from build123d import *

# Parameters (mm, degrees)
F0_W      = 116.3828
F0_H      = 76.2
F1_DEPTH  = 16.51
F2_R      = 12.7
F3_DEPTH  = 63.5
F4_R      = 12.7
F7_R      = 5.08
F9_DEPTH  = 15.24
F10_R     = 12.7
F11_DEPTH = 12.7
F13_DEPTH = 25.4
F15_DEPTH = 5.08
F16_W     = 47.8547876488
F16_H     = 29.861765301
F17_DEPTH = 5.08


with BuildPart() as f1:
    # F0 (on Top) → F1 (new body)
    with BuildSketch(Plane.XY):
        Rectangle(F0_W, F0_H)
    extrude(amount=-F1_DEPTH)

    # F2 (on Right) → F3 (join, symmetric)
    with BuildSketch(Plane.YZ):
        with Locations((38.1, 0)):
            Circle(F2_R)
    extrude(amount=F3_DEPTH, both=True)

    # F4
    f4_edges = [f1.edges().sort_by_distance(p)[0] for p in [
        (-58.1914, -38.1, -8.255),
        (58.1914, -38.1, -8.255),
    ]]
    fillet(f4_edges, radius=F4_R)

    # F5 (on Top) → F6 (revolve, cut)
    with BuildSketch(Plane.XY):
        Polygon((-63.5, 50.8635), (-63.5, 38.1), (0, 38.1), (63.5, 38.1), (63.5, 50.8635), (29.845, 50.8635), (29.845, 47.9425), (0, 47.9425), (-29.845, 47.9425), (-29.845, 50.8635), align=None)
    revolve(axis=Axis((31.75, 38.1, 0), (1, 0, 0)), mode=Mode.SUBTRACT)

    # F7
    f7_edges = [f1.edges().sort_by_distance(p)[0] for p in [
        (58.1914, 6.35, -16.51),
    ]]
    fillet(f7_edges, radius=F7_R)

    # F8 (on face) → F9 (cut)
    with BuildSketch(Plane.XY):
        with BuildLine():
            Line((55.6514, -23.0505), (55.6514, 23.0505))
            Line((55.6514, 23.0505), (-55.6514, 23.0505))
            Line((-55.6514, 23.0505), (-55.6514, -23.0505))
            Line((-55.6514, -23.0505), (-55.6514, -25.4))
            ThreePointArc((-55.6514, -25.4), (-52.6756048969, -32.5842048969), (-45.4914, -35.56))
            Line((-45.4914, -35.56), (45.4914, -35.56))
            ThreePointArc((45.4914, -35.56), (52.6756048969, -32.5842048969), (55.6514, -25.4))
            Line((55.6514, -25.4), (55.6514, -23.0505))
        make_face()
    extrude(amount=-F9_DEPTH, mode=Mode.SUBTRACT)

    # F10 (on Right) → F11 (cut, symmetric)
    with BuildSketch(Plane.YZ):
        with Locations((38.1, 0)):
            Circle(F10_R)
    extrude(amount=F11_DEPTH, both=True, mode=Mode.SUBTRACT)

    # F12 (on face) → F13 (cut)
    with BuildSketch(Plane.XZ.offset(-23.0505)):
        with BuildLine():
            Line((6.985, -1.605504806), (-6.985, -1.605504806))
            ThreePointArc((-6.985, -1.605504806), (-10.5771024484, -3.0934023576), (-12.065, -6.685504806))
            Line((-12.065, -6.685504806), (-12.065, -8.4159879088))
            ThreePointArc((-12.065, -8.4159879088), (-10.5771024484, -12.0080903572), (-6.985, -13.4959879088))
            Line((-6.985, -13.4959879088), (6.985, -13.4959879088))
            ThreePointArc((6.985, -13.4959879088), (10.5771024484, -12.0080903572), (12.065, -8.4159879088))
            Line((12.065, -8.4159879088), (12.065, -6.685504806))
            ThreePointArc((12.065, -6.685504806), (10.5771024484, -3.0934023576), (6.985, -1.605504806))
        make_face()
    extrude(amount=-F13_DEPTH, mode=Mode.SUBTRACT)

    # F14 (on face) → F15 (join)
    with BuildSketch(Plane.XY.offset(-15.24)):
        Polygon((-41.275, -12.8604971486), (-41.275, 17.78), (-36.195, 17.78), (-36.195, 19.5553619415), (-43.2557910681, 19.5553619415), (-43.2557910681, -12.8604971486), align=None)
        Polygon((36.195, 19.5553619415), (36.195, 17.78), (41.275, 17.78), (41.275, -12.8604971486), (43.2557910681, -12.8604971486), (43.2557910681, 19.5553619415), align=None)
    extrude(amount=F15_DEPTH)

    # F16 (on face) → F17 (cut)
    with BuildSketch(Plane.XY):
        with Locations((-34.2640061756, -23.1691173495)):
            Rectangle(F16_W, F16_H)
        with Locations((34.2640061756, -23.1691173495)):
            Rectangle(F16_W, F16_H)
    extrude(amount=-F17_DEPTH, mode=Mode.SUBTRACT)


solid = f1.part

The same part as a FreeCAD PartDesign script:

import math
import FreeCAD as App
import Part
import Sketcher
Q = App.Units.Quantity


def edges_at(feature, points):
    """Names of the edges that pass closest to the given points."""
    edges = feature.Shape.Edges
    near = lambda p: min(range(len(edges)), key=lambda i: edges[i].distToShape(Part.Vertex(*p))[0])
    return sorted({f"Edge{near(p) + 1}" for p in points})

doc = App.newDocument("Part")
body = doc.addObject("PartDesign::Body", "Body")

sketch1 = body.newObject("Sketcher::SketchObject", "Sketch")
sketch1.AttachmentSupport = (doc.getObject("XY_Plane"), [""])
sketch1.MapMode = "FlatFace"
sketch1.addGeometry([
    Part.LineSegment(App.Vector(-58, 38, 0), App.Vector(-58, -38, 0)),
    Part.LineSegment(App.Vector(-58, -38, 0), App.Vector(58, -38, 0)),
    Part.LineSegment(App.Vector(58, -38, 0), App.Vector(58, 38, 0)),
    Part.LineSegment(App.Vector(58, 38, 0), App.Vector(-58, 38, 0)),
], False)
sketch1.addConstraint([
    Sketcher.Constraint("Coincident", 0, 2, 1, 1),
    Sketcher.Constraint("Coincident", 1, 2, 2, 1),
    Sketcher.Constraint("Coincident", 2, 2, 3, 1),
    Sketcher.Constraint("Coincident", 3, 2, 0, 1),
    Sketcher.Constraint("Vertical", 0),
    Sketcher.Constraint("Horizontal", 1),
    Sketcher.Constraint("Vertical", 2),
    Sketcher.Constraint("Horizontal", 3),
    Sketcher.Constraint("Symmetric", 0, 2, 2, 2, -1, 1),
    Sketcher.Constraint("DistanceY", 0, 2, 0, 1, Q("3 in")),
    Sketcher.Constraint("DistanceX", 1, 1, 1, 2, Q("4.582 in")),
])
pad1 = body.newObject("PartDesign::Pad", "Pad")
pad1.Profile = sketch1
pad1.Length = Q("0.65 in")
pad1.Reversed = True

sketch2 = body.newObject("Sketcher::SketchObject", "Sketch001")
sketch2.AttachmentSupport = (doc.getObject("YZ_Plane"), [""])
sketch2.MapMode = "FlatFace"
sketch2.addGeometry(Part.Circle(App.Vector(38, 0, 0), App.Vector(0, 0, 1), 13), False)
sketch2.addConstraint([
    Sketcher.Constraint("PointOnObject", 0, 3, -1),
    Sketcher.Constraint("Diameter", 0, Q("1 in")),
    Sketcher.Constraint("DistanceX", -1, 1, 0, 3, Q("1.5 in")),
])
pad2 = body.newObject("PartDesign::Pad", "Pad001")
pad2.Profile = sketch2
pad2.Length = Q("5 in")
pad2.Midplane = True
doc.recompute()

fillet = body.newObject("PartDesign::Fillet", "Fillet")
fillet.Base = (pad2, edges_at(pad2, [(-58.191, -38.1, -8.255), (58.191, -38.1, -8.255)]))
fillet.Radius = Q("0.5 in")

sketch3 = body.newObject("Sketcher::SketchObject", "Sketch002")
sketch3.AttachmentSupport = (doc.getObject("XY_Plane"), [""])
sketch3.MapMode = "FlatFace"
sketch3.addGeometry([
    Part.LineSegment(App.Vector(-63.5, 50.9, 0), App.Vector(-63.5, 38.1, 0)),
    Part.LineSegment(App.Vector(-63.5, 38.1, 0), App.Vector(63.5, 38.1, 0)),
    Part.LineSegment(App.Vector(63.5, 38.1, 0), App.Vector(63.5, 50.9, 0)),
    Part.LineSegment(App.Vector(63.5, 50.9, 0), App.Vector(29.8, 50.9, 0)),
    Part.LineSegment(App.Vector(29.8, 50.9, 0), App.Vector(29.8, 47.9, 0)),
    Part.LineSegment(App.Vector(29.8, 47.9, 0), App.Vector(-29.8, 47.9, 0)),
    Part.LineSegment(App.Vector(-29.8, 47.9, 0), App.Vector(-29.8, 50.9, 0)),
    Part.LineSegment(App.Vector(-29.8, 50.9, 0), App.Vector(-63.5, 50.9, 0)),
], False)
sketch3.addGeometry(Part.LineSegment(App.Vector(-63.5, 38.1, 0), App.Vector(63.5, 38.1, 0)), True)
sketch3.addConstraint([
    Sketcher.Constraint("Coincident", 0, 2, 1, 1),
    Sketcher.Constraint("Coincident", 1, 2, 2, 1),
    Sketcher.Constraint("Coincident", 2, 2, 3, 1),
    Sketcher.Constraint("Coincident", 3, 2, 4, 1),
    Sketcher.Constraint("Coincident", 4, 2, 5, 1),
    Sketcher.Constraint("Coincident", 5, 2, 6, 1),
    Sketcher.Constraint("Coincident", 6, 2, 7, 1),
    Sketcher.Constraint("Coincident", 7, 2, 0, 1),
    Sketcher.Constraint("Vertical", 0),
    Sketcher.Constraint("Horizontal", 1),
    Sketcher.Constraint("Vertical", 2),
    Sketcher.Constraint("Horizontal", 3),
    Sketcher.Constraint("Vertical", 4),
    Sketcher.Constraint("Horizontal", 5),
    Sketcher.Constraint("Vertical", 6),
    Sketcher.Constraint("Horizontal", 7),
    Sketcher.Constraint("Horizontal", 8),
    Sketcher.Constraint("Coincident", 8, 1, 0, 2),
    Sketcher.Constraint("Symmetric", 3, 2, 6, 2, -2),
    Sketcher.Constraint("Vertical", 2, 2, 8, 2),
    Sketcher.Constraint("Equal", 3, 7),
    Sketcher.Constraint("DistanceX", 1, 1, 1, 2, Q("5 in")),
    Sketcher.Constraint("DistanceX", 5, 2, 5, 1, Q("2.35 in")),
    Sketcher.Constraint("DistanceY", -1, 1, 0, 2, Q("1.5 in")),
    Sketcher.Constraint("DistanceY", 4, 2, 4, 1, Q("0.115 in")),
    Sketcher.Constraint("DistanceY", 0, 2, 0, 1, Q("0.5025 in")),
])
groove = body.newObject("PartDesign::Groove", "Groove")
groove.Profile = sketch3
groove.ReferenceAxis = (sketch3, ["Axis0"])
groove.Angle = 360
doc.recompute()

fillet2 = body.newObject("PartDesign::Fillet", "Fillet001")
fillet2.Base = (groove, edges_at(groove, [(58.191, 6.35, -16.51)]))
fillet2.Radius = Q("0.2 in")

sketch4 = body.newObject("Sketcher::SketchObject", "Sketch003")
sketch4.AttachmentSupport = (doc.getObject("XY_Plane"), [""])
sketch4.MapMode = "FlatFace"
sketch4.addGeometry([
    Part.LineSegment(App.Vector(56, 23, 0), App.Vector(-56, 23, 0)),
    Part.LineSegment(App.Vector(-56, 23, 0), App.Vector(-56, -25, 0)),
    Part.ArcOfCircle(Part.Circle(App.Vector(-45, -25, 0), App.Vector(0, 0, 1), 10), math.radians(180), math.radians(270)),
    Part.LineSegment(App.Vector(-45, -36, 0), App.Vector(45, -36, 0)),
    Part.ArcOfCircle(Part.Circle(App.Vector(45, -25, 0), App.Vector(0, 0, 1), 10), math.radians(-90), math.radians(0)),
    Part.LineSegment(App.Vector(56, -25, 0), App.Vector(56, 23, 0)),
], False)
sketch4.addConstraint([
    Sketcher.Constraint("Coincident", 0, 2, 1, 1),
    Sketcher.Constraint("Tangent", 1, 2, 2, 1),
    Sketcher.Constraint("Tangent", 2, 2, 3, 1),
    Sketcher.Constraint("Tangent", 3, 2, 4, 1),
    Sketcher.Constraint("Tangent", 4, 2, 5, 1),
    Sketcher.Constraint("Coincident", 5, 2, 0, 1),
    Sketcher.Constraint("Horizontal", 0),
    Sketcher.Constraint("Vertical", 1),
    Sketcher.Constraint("Horizontal", 3),
    Sketcher.Constraint("Vertical", 5),
    Sketcher.Constraint("Equal", 2, 4),
    Sketcher.Constraint("Radius", 2, Q("0.4 in")),
    Sketcher.Constraint("DistanceY", 2, 3, -1, 1, Q("1 in")),
    Sketcher.Constraint("DistanceX", 0, 2, 0, 1, Q("4.382 in")),
    Sketcher.Constraint("DistanceY", 1, 2, 1, 1, Q("1.9075 in")),
    Sketcher.Constraint("DistanceX", 2, 3, -1, 1, Q("1.791 in")),
])
pocket1 = body.newObject("PartDesign::Pocket", "Pocket")
pocket1.Profile = sketch4
pocket1.Length = Q("0.6 in")

sketch5 = body.newObject("Sketcher::SketchObject", "Sketch004")
sketch5.AttachmentSupport = (doc.getObject("YZ_Plane"), [""])
sketch5.MapMode = "FlatFace"
sketch5.addGeometry(Part.Circle(App.Vector(38, 0, 0), App.Vector(0, 0, 1), 13), False)
sketch5.addConstraint([
    Sketcher.Constraint("PointOnObject", 0, 3, -1),
    Sketcher.Constraint("Diameter", 0, Q("1 in")),
    Sketcher.Constraint("DistanceX", -1, 1, 0, 3, Q("1.5 in")),
])
pocket2 = body.newObject("PartDesign::Pocket", "Pocket001")
pocket2.Profile = sketch5
pocket2.Length = Q("1 in")
pocket2.Midplane = True

sketch6 = body.newObject("Sketcher::SketchObject", "Sketch005")
sketch6.AttachmentSupport = (doc.getObject("XZ_Plane"), [""])
sketch6.MapMode = "FlatFace"
sketch6.AttachmentOffset = App.Placement(App.Vector(0, 0, -0.9075 * 25.4), App.Rotation())
sketch6.addGeometry([
    Part.LineSegment(App.Vector(7, -1.6, 0), App.Vector(-7, -1.6, 0)),
    Part.ArcOfCircle(Part.Circle(App.Vector(-7, -6.7, 0), App.Vector(0, 0, 1), 5.1), math.radians(90), math.radians(180)),
    Part.LineSegment(App.Vector(-12.1, -6.7, 0), App.Vector(-12.1, -8.4, 0)),
    Part.ArcOfCircle(Part.Circle(App.Vector(-7, -8.4, 0), App.Vector(0, 0, 1), 5.1), math.radians(180), math.radians(270)),
    Part.LineSegment(App.Vector(-7, -13.5, 0), App.Vector(7, -13.5, 0)),
    Part.ArcOfCircle(Part.Circle(App.Vector(7, -8.4, 0), App.Vector(0, 0, 1), 5.1), math.radians(-90), math.radians(0)),
    Part.LineSegment(App.Vector(12.1, -8.4, 0), App.Vector(12.1, -6.7, 0)),
    Part.ArcOfCircle(Part.Circle(App.Vector(7, -6.7, 0), App.Vector(0, 0, 1), 5.1), math.radians(0), math.radians(90)),
], False)
sketch6.addConstraint([
    Sketcher.Constraint("Tangent", 0, 2, 1, 1),
    Sketcher.Constraint("Tangent", 1, 2, 2, 1),
    Sketcher.Constraint("Tangent", 2, 2, 3, 1),
    Sketcher.Constraint("Tangent", 3, 2, 4, 1),
    Sketcher.Constraint("Tangent", 4, 2, 5, 1),
    Sketcher.Constraint("Tangent", 5, 2, 6, 1),
    Sketcher.Constraint("Tangent", 6, 2, 7, 1),
    Sketcher.Constraint("Tangent", 7, 2, 0, 1),
    Sketcher.Constraint("Horizontal", 0),
    Sketcher.Constraint("Vertical", 2),
    Sketcher.Constraint("Horizontal", 4),
    Sketcher.Constraint("Vertical", 6),
    Sketcher.Constraint("Equal", 1, 3),
    Sketcher.Constraint("Equal", 3, 5),
    Sketcher.Constraint("Equal", 5, 7),
    Sketcher.Constraint("Radius", 1, Q("0.2 in")),
    Sketcher.Constraint("DistanceX", 0, 2, 0, 1, Q("0.55 in")),
    Sketcher.Constraint("DistanceX", 1, 3, -1, 1, Q("0.275 in")),
    Sketcher.Constraint("DistanceY", 2, 2, 2, 1, Q("1.730483 mm")),
    Sketcher.Constraint("DistanceY", 1, 3, -1, 1, Q("6.685505 mm")),
])
pocket3 = body.newObject("PartDesign::Pocket", "Pocket002")
pocket3.Profile = sketch6
pocket3.Length = Q("1 in")

sketch7 = body.newObject("Sketcher::SketchObject", "Sketch006")
sketch7.AttachmentSupport = (doc.getObject("XY_Plane"), [""])
sketch7.MapMode = "FlatFace"
sketch7.AttachmentOffset = App.Placement(App.Vector(0, 0, -0.6 * 25.4), App.Rotation())
sketch7.addGeometry([
    Part.LineSegment(App.Vector(-41.3, -12.9, 0), App.Vector(-41.3, 17.8, 0)),
    Part.LineSegment(App.Vector(-41.3, 17.8, 0), App.Vector(-36.2, 17.8, 0)),
    Part.LineSegment(App.Vector(-36.2, 17.8, 0), App.Vector(-36.2, 19.6, 0)),
    Part.LineSegment(App.Vector(-36.2, 19.6, 0), App.Vector(-43.3, 19.6, 0)),
    Part.LineSegment(App.Vector(-43.3, 19.6, 0), App.Vector(-43.3, -12.9, 0)),
    Part.LineSegment(App.Vector(-43.3, -12.9, 0), App.Vector(-41.3, -12.9, 0)),
    Part.LineSegment(App.Vector(36.2, 19.6, 0), App.Vector(36.2, 17.8, 0)),
    Part.LineSegment(App.Vector(36.2, 17.8, 0), App.Vector(41.3, 17.8, 0)),
    Part.LineSegment(App.Vector(41.3, 17.8, 0), App.Vector(41.3, -12.9, 0)),
    Part.LineSegment(App.Vector(41.3, -12.9, 0), App.Vector(43.3, -12.9, 0)),
    Part.LineSegment(App.Vector(43.3, -12.9, 0), App.Vector(43.3, 19.6, 0)),
    Part.LineSegment(App.Vector(43.3, 19.6, 0), App.Vector(36.2, 19.6, 0)),
], False)
sketch7.addConstraint([
    Sketcher.Constraint("Coincident", 0, 2, 1, 1),
    Sketcher.Constraint("Coincident", 1, 2, 2, 1),
    Sketcher.Constraint("Coincident", 2, 2, 3, 1),
    Sketcher.Constraint("Coincident", 3, 2, 4, 1),
    Sketcher.Constraint("Coincident", 4, 2, 5, 1),
    Sketcher.Constraint("Coincident", 5, 2, 0, 1),
    Sketcher.Constraint("Coincident", 6, 2, 7, 1),
    Sketcher.Constraint("Coincident", 7, 2, 8, 1),
    Sketcher.Constraint("Coincident", 8, 2, 9, 1),
    Sketcher.Constraint("Coincident", 9, 2, 10, 1),
    Sketcher.Constraint("Coincident", 10, 2, 11, 1),
    Sketcher.Constraint("Coincident", 11, 2, 6, 1),
    Sketcher.Constraint("Vertical", 0),
    Sketcher.Constraint("Horizontal", 1),
    Sketcher.Constraint("Vertical", 2),
    Sketcher.Constraint("Horizontal", 3),
    Sketcher.Constraint("Vertical", 4),
    Sketcher.Constraint("Horizontal", 5),
    Sketcher.Constraint("Vertical", 6),
    Sketcher.Constraint("Horizontal", 7),
    Sketcher.Constraint("Vertical", 8),
    Sketcher.Constraint("Horizontal", 9),
    Sketcher.Constraint("Vertical", 10),
    Sketcher.Constraint("Horizontal", 11),
    Sketcher.Constraint("Symmetric", 1, 2, 6, 2, -2),
    Sketcher.Constraint("Symmetric", 5, 2, 8, 2, -2),
    Sketcher.Constraint("Symmetric", 3, 2, 10, 2, -2),
    Sketcher.Constraint("DistanceX", 1, 1, 1, 2, Q("0.2 in")),
    Sketcher.Constraint("DistanceY", -1, 1, 0, 2, Q("0.7 in")),
    Sketcher.Constraint("DistanceX", 1, 2, 6, 2, Q("2.85 in")),
    Sketcher.Constraint("DistanceX", 3, 2, 3, 1, Q("7.060791 mm")),
    Sketcher.Constraint("DistanceY", 2, 1, 2, 2, Q("1.775362 mm")),
    Sketcher.Constraint("DistanceY", 4, 2, 4, 1, Q("32.415859 mm")),
])
pad3 = body.newObject("PartDesign::Pad", "Pad002")
pad3.Profile = sketch7
pad3.Length = Q("0.2 in")

sketch8 = body.newObject("Sketcher::SketchObject", "Sketch007")
sketch8.AttachmentSupport = (doc.getObject("XY_Plane"), [""])
sketch8.MapMode = "FlatFace"
sketch8.addGeometry([
    Part.LineSegment(App.Vector(-58, -8, 0), App.Vector(-58, -38, 0)),
    Part.LineSegment(App.Vector(-58, -38, 0), App.Vector(-10, -38, 0)),
    Part.LineSegment(App.Vector(-10, -38, 0), App.Vector(-10, -8, 0)),
    Part.LineSegment(App.Vector(-10, -8, 0), App.Vector(-58, -8, 0)),
    Part.LineSegment(App.Vector(10, -8, 0), App.Vector(10, -38, 0)),
    Part.LineSegment(App.Vector(10, -38, 0), App.Vector(58, -38, 0)),
    Part.LineSegment(App.Vector(58, -38, 0), App.Vector(58, -8, 0)),
    Part.LineSegment(App.Vector(58, -8, 0), App.Vector(10, -8, 0)),
], False)
sketch8.addConstraint([
    Sketcher.Constraint("Coincident", 0, 2, 1, 1),
    Sketcher.Constraint("Coincident", 1, 2, 2, 1),
    Sketcher.Constraint("Coincident", 2, 2, 3, 1),
    Sketcher.Constraint("Coincident", 3, 2, 0, 1),
    Sketcher.Constraint("Coincident", 4, 2, 5, 1),
    Sketcher.Constraint("Coincident", 5, 2, 6, 1),
    Sketcher.Constraint("Coincident", 6, 2, 7, 1),
    Sketcher.Constraint("Coincident", 7, 2, 4, 1),
    Sketcher.Constraint("Vertical", 0),
    Sketcher.Constraint("Horizontal", 1),
    Sketcher.Constraint("Vertical", 2),
    Sketcher.Constraint("Horizontal", 3),
    Sketcher.Constraint("Vertical", 4),
    Sketcher.Constraint("Horizontal", 5),
    Sketcher.Constraint("Vertical", 6),
    Sketcher.Constraint("Horizontal", 7),
    Sketcher.Constraint("Symmetric", 1, 2, 4, 2, -2),
    Sketcher.Constraint("Symmetric", 3, 2, 6, 2, -2),
    Sketcher.Constraint("DistanceY", 0, 2, -1, 1, Q("1.5 in")),
    Sketcher.Constraint("DistanceX", 0, 2, -1, 1, Q("2.291 in")),
    Sketcher.Constraint("DistanceX", 1, 1, 1, 2, Q("47.854788 mm")),
    Sketcher.Constraint("DistanceY", 0, 2, 0, 1, Q("29.861765 mm")),
])
pocket4 = body.newObject("PartDesign::Pocket", "Pocket003")
pocket4.Profile = sketch8
pocket4.Length = Q("0.2 in")

doc.recompute()
